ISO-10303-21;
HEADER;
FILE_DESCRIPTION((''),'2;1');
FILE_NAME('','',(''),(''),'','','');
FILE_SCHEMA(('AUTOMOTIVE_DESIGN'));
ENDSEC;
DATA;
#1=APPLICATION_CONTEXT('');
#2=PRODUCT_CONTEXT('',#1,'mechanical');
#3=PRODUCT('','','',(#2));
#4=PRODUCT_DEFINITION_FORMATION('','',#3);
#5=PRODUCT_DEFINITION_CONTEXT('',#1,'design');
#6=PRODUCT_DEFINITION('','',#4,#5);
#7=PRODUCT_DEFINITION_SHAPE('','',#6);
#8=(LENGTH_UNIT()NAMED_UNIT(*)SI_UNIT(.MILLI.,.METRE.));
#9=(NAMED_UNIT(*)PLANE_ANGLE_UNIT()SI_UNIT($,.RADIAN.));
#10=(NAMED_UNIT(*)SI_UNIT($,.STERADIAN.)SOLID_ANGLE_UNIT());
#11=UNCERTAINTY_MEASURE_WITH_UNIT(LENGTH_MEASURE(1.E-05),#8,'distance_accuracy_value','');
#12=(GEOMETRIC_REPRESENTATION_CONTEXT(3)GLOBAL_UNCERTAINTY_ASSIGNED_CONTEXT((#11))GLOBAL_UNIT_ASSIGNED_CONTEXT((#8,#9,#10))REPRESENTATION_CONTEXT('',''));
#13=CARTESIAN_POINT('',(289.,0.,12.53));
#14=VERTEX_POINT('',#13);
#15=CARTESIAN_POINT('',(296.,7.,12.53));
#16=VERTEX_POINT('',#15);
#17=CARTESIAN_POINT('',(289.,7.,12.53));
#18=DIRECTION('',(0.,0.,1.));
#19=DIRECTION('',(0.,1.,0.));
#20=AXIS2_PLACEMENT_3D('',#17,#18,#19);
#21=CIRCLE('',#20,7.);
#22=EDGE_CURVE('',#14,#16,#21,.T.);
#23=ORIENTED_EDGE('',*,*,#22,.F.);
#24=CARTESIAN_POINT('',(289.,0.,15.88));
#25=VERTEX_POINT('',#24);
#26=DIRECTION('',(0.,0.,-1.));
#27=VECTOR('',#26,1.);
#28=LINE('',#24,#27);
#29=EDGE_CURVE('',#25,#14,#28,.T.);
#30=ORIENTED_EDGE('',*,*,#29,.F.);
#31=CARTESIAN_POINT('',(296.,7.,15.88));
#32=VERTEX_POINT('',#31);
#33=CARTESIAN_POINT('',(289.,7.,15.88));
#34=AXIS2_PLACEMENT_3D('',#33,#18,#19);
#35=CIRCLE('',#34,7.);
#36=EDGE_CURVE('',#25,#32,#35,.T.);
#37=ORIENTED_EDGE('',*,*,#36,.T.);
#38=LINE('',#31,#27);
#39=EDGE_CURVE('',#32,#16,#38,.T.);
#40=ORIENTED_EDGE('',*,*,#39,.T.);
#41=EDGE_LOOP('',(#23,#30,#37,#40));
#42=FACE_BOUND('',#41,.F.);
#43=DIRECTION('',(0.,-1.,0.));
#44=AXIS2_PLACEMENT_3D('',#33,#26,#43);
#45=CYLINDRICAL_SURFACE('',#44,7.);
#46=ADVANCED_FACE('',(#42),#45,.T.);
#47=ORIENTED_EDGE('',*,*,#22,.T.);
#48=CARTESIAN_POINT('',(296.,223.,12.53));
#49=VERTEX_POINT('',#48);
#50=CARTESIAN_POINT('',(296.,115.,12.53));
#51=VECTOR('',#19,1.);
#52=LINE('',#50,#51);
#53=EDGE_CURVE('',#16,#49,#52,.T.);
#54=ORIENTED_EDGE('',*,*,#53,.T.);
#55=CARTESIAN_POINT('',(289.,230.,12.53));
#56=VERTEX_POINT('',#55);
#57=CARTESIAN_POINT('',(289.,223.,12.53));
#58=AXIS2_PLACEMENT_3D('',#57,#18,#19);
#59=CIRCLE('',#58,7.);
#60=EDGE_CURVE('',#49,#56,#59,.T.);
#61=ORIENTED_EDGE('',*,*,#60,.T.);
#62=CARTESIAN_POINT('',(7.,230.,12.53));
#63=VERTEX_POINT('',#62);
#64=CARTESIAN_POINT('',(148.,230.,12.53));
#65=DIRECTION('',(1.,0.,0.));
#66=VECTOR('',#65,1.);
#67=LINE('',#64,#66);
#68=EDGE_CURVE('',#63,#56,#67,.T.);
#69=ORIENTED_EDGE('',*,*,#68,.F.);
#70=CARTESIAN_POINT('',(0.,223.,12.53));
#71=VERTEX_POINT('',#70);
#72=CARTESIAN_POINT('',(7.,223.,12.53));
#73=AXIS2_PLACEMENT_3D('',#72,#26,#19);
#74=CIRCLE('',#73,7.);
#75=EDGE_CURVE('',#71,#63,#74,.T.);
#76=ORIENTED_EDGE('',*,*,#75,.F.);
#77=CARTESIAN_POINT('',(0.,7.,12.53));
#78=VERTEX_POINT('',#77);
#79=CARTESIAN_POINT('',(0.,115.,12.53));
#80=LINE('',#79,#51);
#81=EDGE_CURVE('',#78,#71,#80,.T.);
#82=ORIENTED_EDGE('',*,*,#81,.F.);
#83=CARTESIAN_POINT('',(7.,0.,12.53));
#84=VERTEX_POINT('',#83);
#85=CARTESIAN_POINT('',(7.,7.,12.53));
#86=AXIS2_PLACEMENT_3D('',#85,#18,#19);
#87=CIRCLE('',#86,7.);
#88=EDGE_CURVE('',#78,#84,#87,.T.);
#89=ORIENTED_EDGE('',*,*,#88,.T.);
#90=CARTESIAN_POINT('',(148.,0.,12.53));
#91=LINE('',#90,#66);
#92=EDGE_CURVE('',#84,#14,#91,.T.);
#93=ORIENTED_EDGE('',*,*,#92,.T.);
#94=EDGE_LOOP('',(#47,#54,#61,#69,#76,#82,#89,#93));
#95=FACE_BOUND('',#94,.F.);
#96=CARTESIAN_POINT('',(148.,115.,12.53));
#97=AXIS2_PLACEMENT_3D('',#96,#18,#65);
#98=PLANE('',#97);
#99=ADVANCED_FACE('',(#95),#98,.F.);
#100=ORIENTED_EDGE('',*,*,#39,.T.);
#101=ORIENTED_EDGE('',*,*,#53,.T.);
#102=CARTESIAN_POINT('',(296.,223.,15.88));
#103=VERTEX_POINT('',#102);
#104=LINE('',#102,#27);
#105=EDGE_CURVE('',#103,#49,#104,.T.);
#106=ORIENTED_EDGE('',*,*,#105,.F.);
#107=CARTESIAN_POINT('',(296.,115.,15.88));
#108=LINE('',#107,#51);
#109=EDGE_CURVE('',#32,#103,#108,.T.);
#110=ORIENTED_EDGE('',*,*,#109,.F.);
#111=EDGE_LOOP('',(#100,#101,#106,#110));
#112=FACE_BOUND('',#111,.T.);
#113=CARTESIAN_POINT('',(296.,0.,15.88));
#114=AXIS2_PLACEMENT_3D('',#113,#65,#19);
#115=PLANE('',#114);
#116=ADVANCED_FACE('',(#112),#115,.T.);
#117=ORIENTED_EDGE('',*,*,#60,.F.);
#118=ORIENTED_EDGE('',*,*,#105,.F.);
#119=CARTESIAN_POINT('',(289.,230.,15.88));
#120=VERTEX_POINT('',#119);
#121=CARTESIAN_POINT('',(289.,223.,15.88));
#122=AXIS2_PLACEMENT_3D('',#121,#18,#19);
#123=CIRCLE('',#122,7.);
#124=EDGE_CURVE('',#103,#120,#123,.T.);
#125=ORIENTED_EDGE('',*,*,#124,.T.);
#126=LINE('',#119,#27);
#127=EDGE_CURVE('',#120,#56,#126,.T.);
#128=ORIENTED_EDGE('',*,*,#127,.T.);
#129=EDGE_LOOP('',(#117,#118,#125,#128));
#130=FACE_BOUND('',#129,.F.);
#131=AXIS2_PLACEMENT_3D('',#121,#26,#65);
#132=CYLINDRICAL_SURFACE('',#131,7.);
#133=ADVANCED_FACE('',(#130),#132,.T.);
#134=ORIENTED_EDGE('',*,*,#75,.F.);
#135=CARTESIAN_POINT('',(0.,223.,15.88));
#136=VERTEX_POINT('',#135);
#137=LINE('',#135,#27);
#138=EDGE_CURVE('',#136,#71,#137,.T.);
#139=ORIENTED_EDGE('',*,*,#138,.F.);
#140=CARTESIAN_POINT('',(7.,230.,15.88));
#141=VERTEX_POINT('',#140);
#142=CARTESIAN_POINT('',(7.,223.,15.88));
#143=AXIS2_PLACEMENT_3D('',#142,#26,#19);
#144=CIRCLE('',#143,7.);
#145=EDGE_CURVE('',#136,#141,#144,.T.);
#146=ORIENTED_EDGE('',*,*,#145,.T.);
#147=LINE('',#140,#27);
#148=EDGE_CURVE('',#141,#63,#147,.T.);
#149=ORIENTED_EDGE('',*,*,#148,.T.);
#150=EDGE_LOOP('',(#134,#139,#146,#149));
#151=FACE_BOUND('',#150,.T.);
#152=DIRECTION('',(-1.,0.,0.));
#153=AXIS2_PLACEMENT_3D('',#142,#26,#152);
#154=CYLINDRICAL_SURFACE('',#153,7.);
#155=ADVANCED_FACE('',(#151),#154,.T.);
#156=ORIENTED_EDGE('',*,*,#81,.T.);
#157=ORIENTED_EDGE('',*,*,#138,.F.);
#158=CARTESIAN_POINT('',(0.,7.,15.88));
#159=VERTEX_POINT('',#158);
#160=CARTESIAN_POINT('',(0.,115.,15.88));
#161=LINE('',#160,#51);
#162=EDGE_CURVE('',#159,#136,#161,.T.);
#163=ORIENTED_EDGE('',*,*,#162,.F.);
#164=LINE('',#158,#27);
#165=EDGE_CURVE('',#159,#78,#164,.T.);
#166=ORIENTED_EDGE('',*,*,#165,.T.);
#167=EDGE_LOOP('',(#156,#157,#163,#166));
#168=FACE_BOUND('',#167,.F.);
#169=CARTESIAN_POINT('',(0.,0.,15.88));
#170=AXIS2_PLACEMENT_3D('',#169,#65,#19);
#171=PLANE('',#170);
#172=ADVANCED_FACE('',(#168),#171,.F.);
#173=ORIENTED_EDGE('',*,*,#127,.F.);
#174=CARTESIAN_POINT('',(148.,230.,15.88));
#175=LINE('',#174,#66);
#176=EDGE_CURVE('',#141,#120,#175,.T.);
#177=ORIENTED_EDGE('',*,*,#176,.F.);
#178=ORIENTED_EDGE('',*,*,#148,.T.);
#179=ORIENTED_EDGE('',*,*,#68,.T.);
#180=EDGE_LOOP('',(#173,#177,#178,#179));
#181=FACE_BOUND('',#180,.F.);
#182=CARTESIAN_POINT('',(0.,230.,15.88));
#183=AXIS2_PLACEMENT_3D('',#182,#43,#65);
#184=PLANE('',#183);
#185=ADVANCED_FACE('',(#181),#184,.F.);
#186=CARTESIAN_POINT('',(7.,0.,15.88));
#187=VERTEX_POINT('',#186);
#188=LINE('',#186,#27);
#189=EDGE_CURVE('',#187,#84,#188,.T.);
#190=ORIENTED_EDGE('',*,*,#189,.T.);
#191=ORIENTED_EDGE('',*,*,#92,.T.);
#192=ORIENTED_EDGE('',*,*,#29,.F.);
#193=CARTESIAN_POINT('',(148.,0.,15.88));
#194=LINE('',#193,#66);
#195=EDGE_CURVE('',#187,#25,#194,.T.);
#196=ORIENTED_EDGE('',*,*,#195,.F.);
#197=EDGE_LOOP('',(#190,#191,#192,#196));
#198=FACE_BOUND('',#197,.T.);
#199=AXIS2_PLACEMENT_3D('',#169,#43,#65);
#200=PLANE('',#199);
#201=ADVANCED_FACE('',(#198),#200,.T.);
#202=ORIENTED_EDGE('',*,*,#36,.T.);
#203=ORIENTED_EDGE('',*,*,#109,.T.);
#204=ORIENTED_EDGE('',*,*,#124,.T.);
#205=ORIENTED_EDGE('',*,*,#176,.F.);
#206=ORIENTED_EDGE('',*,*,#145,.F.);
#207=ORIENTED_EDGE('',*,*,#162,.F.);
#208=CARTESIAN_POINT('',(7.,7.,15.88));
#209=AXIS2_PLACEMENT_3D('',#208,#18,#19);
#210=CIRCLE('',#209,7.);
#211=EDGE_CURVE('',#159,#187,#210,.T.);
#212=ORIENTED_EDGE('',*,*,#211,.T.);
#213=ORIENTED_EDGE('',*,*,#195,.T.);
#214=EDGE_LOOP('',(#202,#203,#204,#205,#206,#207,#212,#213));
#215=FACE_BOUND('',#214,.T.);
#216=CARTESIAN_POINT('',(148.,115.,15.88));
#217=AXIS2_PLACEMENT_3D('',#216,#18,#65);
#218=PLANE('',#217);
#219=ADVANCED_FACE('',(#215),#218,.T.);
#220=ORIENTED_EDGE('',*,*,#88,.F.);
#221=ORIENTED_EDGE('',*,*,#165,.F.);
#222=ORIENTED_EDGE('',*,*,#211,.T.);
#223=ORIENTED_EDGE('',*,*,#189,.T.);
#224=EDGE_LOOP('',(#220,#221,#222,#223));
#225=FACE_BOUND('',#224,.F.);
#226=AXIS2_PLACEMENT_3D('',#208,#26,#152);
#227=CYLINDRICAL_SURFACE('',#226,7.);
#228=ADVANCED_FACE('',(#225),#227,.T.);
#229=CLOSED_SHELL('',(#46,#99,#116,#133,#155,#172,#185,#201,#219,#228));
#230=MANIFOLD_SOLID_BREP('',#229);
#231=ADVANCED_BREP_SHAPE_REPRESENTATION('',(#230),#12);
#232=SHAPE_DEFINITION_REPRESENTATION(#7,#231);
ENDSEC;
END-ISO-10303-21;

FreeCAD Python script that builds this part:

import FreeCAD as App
import Part
import Sketcher
from FreeCAD import Vector
Q = App.Units.Quantity


def edges_at(feature, points):
    """Names of the edges that pass closest to the given points."""
    edges = feature.Shape.Edges
    near = lambda p: min(range(len(edges)), key=lambda i: edges[i].distToShape(Part.Vertex(*p))[0])
    return sorted({f"Edge{near(p) + 1}" for p in points})

doc = App.newDocument("Part")
params = doc.addObject("Spreadsheet::Sheet", "Params")
for row, (alias, value) in enumerate([
    ("sketch1_width", "296 mm"),
    ("sketch1_height", "230 mm"),
    ("pad1_length", "3.35 mm"),
    ("fillet_radius", "7 mm"),
], start=1):
    params.set(f"A{row}", alias)
    params.set(f"B{row}", "=" + value)
    params.setAlias(f"B{row}", alias)

body = doc.addObject("PartDesign::Body", "Body")

sketch1 = body.newObject("Sketcher::SketchObject", "Sketch")
sketch1.AttachmentSupport = (doc.getObject("XY_Plane"), [""])
sketch1.MapMode = "FlatFace"
sketch1.AttachmentOffset = App.Placement(Vector(0, 0, 15.88), App.Rotation())
sketch1.addGeometry([
    Part.LineSegment(Vector(0, 230, 0), Vector(0, 0, 0)),
    Part.LineSegment(Vector(0, 0, 0), Vector(296, 0, 0)),
    Part.LineSegment(Vector(296, 0, 0), Vector(296, 230, 0)),
    Part.LineSegment(Vector(296, 230, 0), Vector(0, 230, 0)),
], False)
sketch1.addConstraint([
    Sketcher.Constraint("Coincident", 0, 2, 1, 1),
    Sketcher.Constraint("Coincident", 1, 2, 2, 1),
    Sketcher.Constraint("Coincident", 2, 2, 3, 1),
    Sketcher.Constraint("Coincident", 3, 2, 0, 1),
    Sketcher.Constraint("Vertical", 0),
    Sketcher.Constraint("Horizontal", 1),
    Sketcher.Constraint("Vertical", 2),
    Sketcher.Constraint("Horizontal", 3),
    Sketcher.Constraint("Coincident", 0, 2, -1, 1),
    Sketcher.Constraint("DistanceX", 1, 1, 1, 2, Q("296 mm")),
    Sketcher.Constraint("DistanceY", 0, 2, 0, 1, Q("230 mm")),
])
sketch1.setExpression("Constraints[9]", "Params.sketch1_width")
sketch1.setExpression("Constraints[10]", "Params.sketch1_height")
pad1 = body.newObject("PartDesign::Pad", "Pad")
pad1.Profile = sketch1
pad1.setExpression("Length", "Params.pad1_length")
pad1.Reversed = True
doc.recompute()

fillet = body.newObject("PartDesign::Fillet", "Fillet")
fillet.Base = (pad1, edges_at(pad1, [
    (296, 230, 14.205),
    (0, 230, 14.205),
    (0, 0, 14.205),
    (296, 0, 14.205),
]))
fillet.setExpression("Radius", "Params.fillet_radius")

doc.recompute()
